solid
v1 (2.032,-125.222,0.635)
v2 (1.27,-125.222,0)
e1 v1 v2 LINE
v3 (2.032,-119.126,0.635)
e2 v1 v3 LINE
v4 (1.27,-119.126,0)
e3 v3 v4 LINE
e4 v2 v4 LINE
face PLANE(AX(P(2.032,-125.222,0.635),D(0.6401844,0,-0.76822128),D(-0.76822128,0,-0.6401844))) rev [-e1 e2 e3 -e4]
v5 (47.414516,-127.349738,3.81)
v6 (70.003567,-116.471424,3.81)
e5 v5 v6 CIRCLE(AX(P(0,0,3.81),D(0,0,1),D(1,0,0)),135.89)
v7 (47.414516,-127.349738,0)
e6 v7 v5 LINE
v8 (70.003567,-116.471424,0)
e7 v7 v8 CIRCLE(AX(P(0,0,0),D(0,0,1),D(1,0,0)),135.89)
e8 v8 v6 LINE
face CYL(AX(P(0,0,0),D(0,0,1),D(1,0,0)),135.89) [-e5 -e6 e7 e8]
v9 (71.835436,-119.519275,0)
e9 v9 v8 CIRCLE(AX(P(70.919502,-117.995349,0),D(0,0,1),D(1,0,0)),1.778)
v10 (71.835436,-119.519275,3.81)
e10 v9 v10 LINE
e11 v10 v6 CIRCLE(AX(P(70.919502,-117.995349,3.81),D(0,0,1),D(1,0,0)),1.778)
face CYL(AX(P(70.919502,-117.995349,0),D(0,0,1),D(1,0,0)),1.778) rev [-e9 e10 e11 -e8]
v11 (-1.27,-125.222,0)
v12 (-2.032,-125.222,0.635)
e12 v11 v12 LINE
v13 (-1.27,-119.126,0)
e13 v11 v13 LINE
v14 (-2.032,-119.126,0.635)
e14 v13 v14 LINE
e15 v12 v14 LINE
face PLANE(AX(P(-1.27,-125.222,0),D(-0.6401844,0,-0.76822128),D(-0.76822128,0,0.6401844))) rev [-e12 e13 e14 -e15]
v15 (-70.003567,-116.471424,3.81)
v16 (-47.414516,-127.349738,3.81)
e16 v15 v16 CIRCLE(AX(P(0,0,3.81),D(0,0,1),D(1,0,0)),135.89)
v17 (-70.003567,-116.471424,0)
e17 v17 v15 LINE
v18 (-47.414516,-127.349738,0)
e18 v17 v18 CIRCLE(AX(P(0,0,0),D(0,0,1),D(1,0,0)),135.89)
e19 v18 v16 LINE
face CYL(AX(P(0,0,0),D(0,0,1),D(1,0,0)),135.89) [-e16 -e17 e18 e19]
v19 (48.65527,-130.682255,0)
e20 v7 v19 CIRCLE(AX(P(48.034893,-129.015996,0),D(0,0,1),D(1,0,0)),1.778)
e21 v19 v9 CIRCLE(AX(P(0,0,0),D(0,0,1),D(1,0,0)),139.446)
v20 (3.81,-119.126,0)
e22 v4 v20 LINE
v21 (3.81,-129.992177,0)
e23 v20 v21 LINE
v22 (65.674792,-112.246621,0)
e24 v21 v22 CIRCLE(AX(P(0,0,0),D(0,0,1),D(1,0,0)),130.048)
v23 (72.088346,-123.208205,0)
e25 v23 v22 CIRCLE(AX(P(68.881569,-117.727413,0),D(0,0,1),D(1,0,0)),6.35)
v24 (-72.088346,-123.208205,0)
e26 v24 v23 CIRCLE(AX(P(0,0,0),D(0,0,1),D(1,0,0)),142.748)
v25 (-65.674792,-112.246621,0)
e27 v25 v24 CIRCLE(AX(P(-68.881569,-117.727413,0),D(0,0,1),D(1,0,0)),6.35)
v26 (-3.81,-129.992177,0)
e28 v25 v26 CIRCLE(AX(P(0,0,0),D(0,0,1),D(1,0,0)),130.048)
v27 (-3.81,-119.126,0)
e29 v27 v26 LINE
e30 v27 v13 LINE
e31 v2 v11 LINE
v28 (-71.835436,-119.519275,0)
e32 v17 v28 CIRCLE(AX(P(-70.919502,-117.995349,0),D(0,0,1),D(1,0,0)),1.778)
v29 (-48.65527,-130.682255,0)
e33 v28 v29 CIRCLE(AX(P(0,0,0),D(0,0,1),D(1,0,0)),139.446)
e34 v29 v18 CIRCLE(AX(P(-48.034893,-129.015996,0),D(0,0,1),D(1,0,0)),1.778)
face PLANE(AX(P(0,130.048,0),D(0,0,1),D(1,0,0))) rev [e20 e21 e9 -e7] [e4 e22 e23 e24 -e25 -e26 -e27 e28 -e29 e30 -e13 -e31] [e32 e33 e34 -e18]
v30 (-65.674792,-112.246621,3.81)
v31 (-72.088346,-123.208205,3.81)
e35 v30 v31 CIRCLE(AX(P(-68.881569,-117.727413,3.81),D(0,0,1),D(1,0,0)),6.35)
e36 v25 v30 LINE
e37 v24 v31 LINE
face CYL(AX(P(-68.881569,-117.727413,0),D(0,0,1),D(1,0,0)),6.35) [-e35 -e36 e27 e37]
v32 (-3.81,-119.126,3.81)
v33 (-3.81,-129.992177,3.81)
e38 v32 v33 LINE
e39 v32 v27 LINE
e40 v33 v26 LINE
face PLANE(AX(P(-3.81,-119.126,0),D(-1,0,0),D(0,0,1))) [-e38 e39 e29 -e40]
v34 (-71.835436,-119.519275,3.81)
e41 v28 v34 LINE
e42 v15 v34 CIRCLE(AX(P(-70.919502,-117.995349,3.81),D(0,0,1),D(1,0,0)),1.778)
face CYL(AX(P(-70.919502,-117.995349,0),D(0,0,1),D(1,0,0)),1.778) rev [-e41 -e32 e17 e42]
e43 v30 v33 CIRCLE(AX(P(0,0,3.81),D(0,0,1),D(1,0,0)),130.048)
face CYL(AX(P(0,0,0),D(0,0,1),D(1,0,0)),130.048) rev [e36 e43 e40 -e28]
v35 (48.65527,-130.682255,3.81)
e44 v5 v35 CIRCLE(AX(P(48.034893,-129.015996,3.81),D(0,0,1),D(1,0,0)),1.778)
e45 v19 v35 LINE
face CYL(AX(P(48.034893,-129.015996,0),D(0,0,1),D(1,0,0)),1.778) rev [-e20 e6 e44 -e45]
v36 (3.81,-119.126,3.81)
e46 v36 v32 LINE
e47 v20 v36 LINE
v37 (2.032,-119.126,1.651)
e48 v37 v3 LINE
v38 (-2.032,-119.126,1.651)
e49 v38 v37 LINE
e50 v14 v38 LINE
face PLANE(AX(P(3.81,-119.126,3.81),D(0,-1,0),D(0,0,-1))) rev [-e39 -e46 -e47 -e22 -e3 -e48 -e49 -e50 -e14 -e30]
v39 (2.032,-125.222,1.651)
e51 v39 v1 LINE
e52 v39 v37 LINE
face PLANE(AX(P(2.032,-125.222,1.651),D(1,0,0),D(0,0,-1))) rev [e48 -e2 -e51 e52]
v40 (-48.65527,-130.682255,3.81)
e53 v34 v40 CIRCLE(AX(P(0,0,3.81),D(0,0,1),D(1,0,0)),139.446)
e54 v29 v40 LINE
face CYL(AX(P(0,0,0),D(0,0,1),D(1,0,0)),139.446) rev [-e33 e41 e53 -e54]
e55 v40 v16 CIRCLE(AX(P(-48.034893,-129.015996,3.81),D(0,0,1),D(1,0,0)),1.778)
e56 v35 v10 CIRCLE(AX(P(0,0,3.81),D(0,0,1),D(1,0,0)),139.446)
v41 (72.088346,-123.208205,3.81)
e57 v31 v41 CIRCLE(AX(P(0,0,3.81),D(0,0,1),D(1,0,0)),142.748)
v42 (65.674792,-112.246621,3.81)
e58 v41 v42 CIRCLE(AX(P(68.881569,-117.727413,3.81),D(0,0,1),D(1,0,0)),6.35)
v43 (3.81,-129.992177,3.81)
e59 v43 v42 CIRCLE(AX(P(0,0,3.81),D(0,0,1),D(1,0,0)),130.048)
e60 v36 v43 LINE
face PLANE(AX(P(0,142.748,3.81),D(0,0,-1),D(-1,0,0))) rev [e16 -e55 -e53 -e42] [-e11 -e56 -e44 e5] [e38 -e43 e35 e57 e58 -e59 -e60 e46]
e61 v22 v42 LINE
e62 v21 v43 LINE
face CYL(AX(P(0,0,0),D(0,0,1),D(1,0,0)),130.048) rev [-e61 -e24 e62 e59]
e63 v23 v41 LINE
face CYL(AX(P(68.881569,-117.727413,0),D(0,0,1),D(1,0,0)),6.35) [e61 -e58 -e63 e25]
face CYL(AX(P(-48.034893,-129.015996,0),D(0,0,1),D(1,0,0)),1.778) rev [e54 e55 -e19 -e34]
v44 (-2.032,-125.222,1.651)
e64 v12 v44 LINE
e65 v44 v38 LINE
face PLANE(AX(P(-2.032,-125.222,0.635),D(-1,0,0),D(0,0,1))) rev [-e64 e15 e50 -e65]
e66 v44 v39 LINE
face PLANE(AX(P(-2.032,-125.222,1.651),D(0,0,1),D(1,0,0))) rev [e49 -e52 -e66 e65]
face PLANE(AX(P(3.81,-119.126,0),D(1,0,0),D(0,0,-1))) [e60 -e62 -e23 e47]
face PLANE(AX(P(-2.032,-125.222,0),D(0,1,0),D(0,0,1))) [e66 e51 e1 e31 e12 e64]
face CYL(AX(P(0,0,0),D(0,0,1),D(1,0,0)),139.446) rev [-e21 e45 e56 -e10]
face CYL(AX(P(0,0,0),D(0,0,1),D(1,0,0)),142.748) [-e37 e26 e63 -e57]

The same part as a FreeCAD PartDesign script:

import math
import FreeCAD as App
import Part
import Sketcher

V = App.Vector
Q = App.Units.Quantity


def add_polygon(sketch, points):
    """Adds a closed chain of lines whose ends are joined by coincident constraints."""
    first, n = sketch.GeometryCount, len(points)
    for a, b in zip(points, points[1:] + points[:1]):
        sketch.addGeometry(Part.LineSegment(App.Vector(*a, 0), App.Vector(*b, 0)), False)
    for i in range(n):
        sketch.addConstraint(Sketcher.Constraint("Coincident", first + i, 2, first + (i + 1) % n, 1))

doc = App.newDocument("Part")
params = doc.addObject("Spreadsheet::Sheet", "Params")
for row, (alias, value) in enumerate([
    ("sketch1_width", "0.5 in"),
    ("sketch1_height", "0.15 in"),
    ("revolution_angle", "360 deg"),
    ("sketch2_diameter", "0.14 in"),
    ("pocket1_length", "1.2 in"),
    ("sketch3_diameter", "0.14 in"),
    ("sketch3_radius", "5.49 in"),
    ("sketch3_radius2", "0.25 in"),
    ("sketch3_radius3", "5.12 in"),
    ("sketch4_width", "0.3 in"),
    ("sketch4_height", "0.15 in"),
    ("pad1_length", "0.43 in"),
    ("sketch5_width", "0.1 in"),
    ("sketch5_width2", "0.16 in"),
    ("sketch5_height", "0.04 in"),
    ("pocket3_length", "0.24 in"),
], start=1):
    params.set(f"A{row}", alias)
    params.set(f"B{row}", "=" + value)
    params.setAlias(f"B{row}", alias)

body = doc.addObject("PartDesign::Body", "Body")

sketch1 = body.newObject("Sketcher::SketchObject", "Sketch")
sketch1.AttachmentSupport = (doc.getObject("YZ_Plane"), [""])
sketch1.MapMode = "FlatFace"
add_polygon(sketch1, [(142.7, 3.8), (130, 3.8), (130, 0), (142.7, 0)])
sketch1.addConstraint([
    Sketcher.Constraint("Horizontal", 0),
    Sketcher.Constraint("Vertical", 1),
    Sketcher.Constraint("Horizontal", 2),
    Sketcher.Constraint("Vertical", 3),
    Sketcher.Constraint("PointOnObject", 1, 2, -1),
    Sketcher.Constraint("DistanceX", 0, 2, 0, 1, Q("0.5 in")),
    Sketcher.Constraint("DistanceY", 1, 2, 1, 1, Q("0.15 in")),
    Sketcher.Constraint("DistanceX", -1, 1, 0, 2, Q("5.12 in")),
])
sketch1.setExpression("Constraints[9]", "Params.sketch1_width")
sketch1.setExpression("Constraints[10]", "Params.sketch1_height")
revolution = body.newObject("PartDesign::Revolution", "Revolution")
revolution.Profile = sketch1
revolution.ReferenceAxis = (sketch1, ["V_Axis"])
revolution.setExpression("Angle", "Params.revolution_angle")

sketch2 = body.newObject("Sketcher::SketchObject", "Sketch001")
sketch2.AttachmentSupport = (doc.getObject("XY_Plane"), [""])
sketch2.MapMode = "FlatFace"
sketch2.AttachmentOffset = App.Placement(V(0, 0, 0.15 * 25.4), App.Rotation())
sketch2.addGeometry([
    Part.Circle(V(0, 137.7, 0), V(0, 0, 1), 1.8),
    Part.Circle(V(107.6, 85.8, 0), V(0, 0, 1), 1.8),
    Part.Circle(V(134.2, -30.6, 0), V(0, 0, 1), 1.8),
    Part.Circle(V(59.7, -124, 0), V(0, 0, 1), 1.8),
    Part.Circle(V(-59.7, -124, 0), V(0, 0, 1), 1.8),
    Part.Circle(V(-134.2, -30.6, 0), V(0, 0, 1), 1.8),
    Part.Circle(V(-107.6, 85.8, 0), V(0, 0, 1), 1.8),
], False)
sketch2.addConstraint([
    Sketcher.Constraint("Equal", 0, 1),
    Sketcher.Constraint("Equal", 1, 2),
    Sketcher.Constraint("Equal", 2, 3),
    Sketcher.Constraint("Equal", 3, 4),
    Sketcher.Constraint("Equal", 4, 5),
    Sketcher.Constraint("Equal", 5, 6),
    Sketcher.Constraint("Symmetric", 3, 3, 4, 3, -2),
    Sketcher.Constraint("Symmetric", 2, 3, 5, 3, -2),
    Sketcher.Constraint("Symmetric", 1, 3, 6, 3, -2),
    Sketcher.Constraint("PointOnObject", 0, 3, -2),
    Sketcher.Constraint("Diameter", 0, Q("0.14 in")),
    Sketcher.Constraint("DistanceY", -1, 1, 0, 3, Q("5.42 in")),
    Sketcher.Constraint("DistanceX", 1, 3, 2, 3, 26.583199),
    Sketcher.Constraint("DistanceY", 2, 3, -1, 1, 30.634012),
    Sketcher.Constraint("DistanceX", 3, 3, 2, 3, 74.484469),
    Sketcher.Constraint("DistanceY", 3, 3, 2, 3, 93.40057),
    Sketcher.Constraint("DistanceX", 5, 3, 2, 3, 268.432752),
    Sketcher.Constraint("DistanceY", -1, 1, 1, 3, 85.834594),
])
sketch2.setExpression("Constraints[10]", "Params.sketch2_diameter")
pocket1 = body.newObject("PartDesign::Pocket", "Pocket")
pocket1.Profile = sketch2
pocket1.setExpression("Length", "Params.pocket1_length")
pocket1.Midplane = True

sketch3 = body.newObject("Sketcher::SketchObject", "Sketch002")
sketch3.AttachmentSupport = (doc.getObject("XY_Plane"), [""])
sketch3.MapMode = "FlatFace"
sketch3.AttachmentOffset = App.Placement(V(0, 0, 0.15 * 25.4), App.Rotation())
sketch3.addGeometry([
    Part.ArcOfCircle(Part.Circle(V(-70.9, -118, 0), V(0, 0, 1), 1.8), math.radians(59), math.radians(239)),
    Part.ArcOfCircle(Part.Circle(V(0, 0, 0), V(0, 0, 1), 139.4), math.radians(-121.01), math.radians(-115.71)),
    Part.ArcOfCircle(Part.Circle(V(-59.7, -124, 0), V(0, 0, 1), 1.8), math.radians(64), math.radians(244)),
    Part.ArcOfCircle(Part.Circle(V(0, 0, 0), V(0, 0, 1), 135.9), math.radians(-121.01), math.radians(-115.71)),
    Part.ArcOfCircle(Part.Circle(V(-59.7, -124, 0), V(0, 0, 1), 1.8), math.radians(-116), math.radians(0)),
    Part.ArcOfCircle(Part.Circle(V(0, 0, 0), V(0, 0, 1), 139.4), math.radians(-115.71), math.radians(-110.42)),
    Part.ArcOfCircle(Part.Circle(V(-48, -129, 0), V(0, 0, 1), 1.8), math.radians(-110), math.radians(70)),
    Part.ArcOfCircle(Part.Circle(V(0, 0, 0), V(0, 0, 1), 135.9), math.radians(-115.71), math.radians(-110.42)),
    Part.ArcOfCircle(Part.Circle(V(-59.7, -124, 0), V(0, 0, 1), 1.8), math.radians(0), math.radians(64)),
    Part.ArcOfCircle(Part.Circle(V(48, -129, 0), V(0, 0, 1), 1.8), math.radians(110), math.radians(290)),
    Part.ArcOfCircle(Part.Circle(V(0, 0, 0), V(0, 0, 1), 139.4), math.radians(-69.58), math.radians(-64.29)),
    Part.ArcOfCircle(Part.Circle(V(59.7, -124, 0), V(0, 0, 1), 1.8), math.radians(116), math.radians(296)),
    Part.ArcOfCircle(Part.Circle(V(0, 0, 0), V(0, 0, 1), 135.9), math.radians(-69.58), math.radians(-64.29)),
    Part.ArcOfCircle(Part.Circle(V(59.7, -124, 0), V(0, 0, 1), 1.8), math.radians(-64), math.radians(0)),
    Part.ArcOfCircle(Part.Circle(V(0, 0, 0), V(0, 0, 1), 139.4), math.radians(-64.29), math.radians(-58.99)),
    Part.ArcOfCircle(Part.Circle(V(70.9, -118, 0), V(0, 0, 1), 1.8), math.radians(-59), math.radians(121)),
    Part.ArcOfCircle(Part.Circle(V(0, 0, 0), V(0, 0, 1), 135.9), math.radians(-64.29), math.radians(-58.99)),
    Part.ArcOfCircle(Part.Circle(V(59.7, -124, 0), V(0, 0, 1), 1.8), math.radians(0), math.radians(116)),
    Part.ArcOfCircle(Part.Circle(V(-68.9, -117.7, 0), V(0, 0, 1), 6.3), math.radians(60), math.radians(240)),
    Part.ArcOfCircle(Part.Circle(V(0, 0, 0), V(0, 0, 1), 130), math.radians(0), math.radians(240)),
    Part.ArcOfCircle(Part.Circle(V(0, 0, 0), V(0, 0, 1), 130), math.radians(-60), math.radians(0)),
    Part.ArcOfCircle(Part.Circle(V(68.9, -117.7, 0), V(0, 0, 1), 6.3), math.radians(-60), math.radians(120)),
    Part.ArcOfCircle(Part.Circle(V(0, 0, 0), V(0, 0, 1), 142.7), math.radians(-60), math.radians(0)),
    Part.ArcOfCircle(Part.Circle(V(0, 0, 0), V(0, 0, 1), 142.7), math.radians(0), math.radians(240)),
    Part.Circle(V(-134.2, -30.6, 0), V(0, 0, 1), 1.8),
    Part.Circle(V(134.2, -30.6, 0), V(0, 0, 1), 1.8),
    Part.Circle(V(-107.6, 85.8, 0), V(0, 0, 1), 1.8),
    Part.Circle(V(0, 137.7, 0), V(0, 0, 1), 1.8),
    Part.Circle(V(107.6, 85.8, 0), V(0, 0, 1), 1.8),
], False)
sketch3.addConstraint([
    Sketcher.Constraint("Tangent", 0, 2, 1, 1),
    Sketcher.Constraint("Tangent", 1, 2, 2, 2),
    Sketcher.Constraint("Tangent", 2, 1, 3, 2),
    Sketcher.Constraint("Tangent", 3, 1, 0, 1),
    Sketcher.Constraint("Tangent", 4, 1, 5, 1),
    Sketcher.Constraint("Tangent", 5, 2, 6, 1),
    Sketcher.Constraint("Tangent", 6, 2, 7, 2),
    Sketcher.Constraint("Tangent", 7, 1, 8, 2),
    Sketcher.Constraint("Tangent", 8, 1, 4, 2),
    Sketcher.Constraint("Tangent", 9, 2, 10, 1),
    Sketcher.Constraint("Tangent", 10, 2, 11, 2),
    Sketcher.Constraint("Tangent", 11, 1, 12, 2),
    Sketcher.Constraint("Tangent", 12, 1, 9, 1),
    Sketcher.Constraint("Tangent", 13, 1, 14, 1),
    Sketcher.Constraint("Tangent", 14, 2, 15, 1),
    Sketcher.Constraint("Tangent", 15, 2, 16, 2),
    Sketcher.Constraint("Tangent", 16, 1, 17, 2),
    Sketcher.Constraint("Tangent", 17, 1, 13, 2),
    Sketcher.Constraint("Tangent", 18, 1, 19, 2),
    Sketcher.Constraint("Tangent", 19, 1, 20, 2),
    Sketcher.Constraint("Tangent", 20, 1, 21, 2),
    Sketcher.Constraint("Tangent", 21, 1, 22, 1),
    Sketcher.Constraint("Tangent", 22, 2, 23, 1),
    Sketcher.Constraint("Tangent", 23, 2, 18, 2),
    Sketcher.Constraint("Coincident", 1, 3, -1, 1),
    Sketcher.Constraint("Coincident", 3, 3, -1, 1),
    Sketcher.Constraint("Coincident", 5, 3, -1, 1),
    Sketcher.Constraint("Coincident", 7, 3, -1, 1),
    Sketcher.Constraint("Coincident", 10, 3, -1, 1),
    Sketcher.Constraint("Coincident", 12, 3, -1, 1),
    Sketcher.Constraint("Coincident", 14, 3, -1, 1),
    Sketcher.Constraint("Coincident", 16, 3, -1, 1),
    Sketcher.Constraint("Coincident", 19, 3, -1, 1),
    Sketcher.Constraint("Coincident", 22, 3, -1, 1),
    Sketcher.Constraint("Coincident", 4, 3, 2, 3),
    Sketcher.Constraint("Coincident", 13, 3, 11, 3),
    Sketcher.Constraint("Coincident", 7, 1, 2, 1),
    Sketcher.Constraint("Coincident", 16, 1, 11, 1),
    Sketcher.Constraint("Equal", 8, 9),
    Sketcher.Constraint("Equal", 5, 10),
    Sketcher.Constraint("Equal", 19, 20),
    Sketcher.Constraint("Equal", 18, 21),
    Sketcher.Constraint("Equal", 17, 24),
    Sketcher.Constraint("Equal", 24, 25),
    Sketcher.Constraint("Equal", 25, 26),
    Sketcher.Constraint("Equal", 26, 27),
    Sketcher.Constraint("Equal", 27, 28),
    Sketcher.Constraint("Symmetric", 24, 3, 25, 3, -2),
    Sketcher.Constraint("Symmetric", 26, 3, 28, 3, -2),
    Sketcher.Constraint("PointOnObject", 27, 3, -2),
    Sketcher.Constraint("PointOnObject", 19, 1, -1),
    Sketcher.Constraint("PointOnObject", 22, 2, -1),
    Sketcher.Constraint("Horizontal", 6, 3, 9, 3),
    Sketcher.Constraint("Horizontal", 8, 3, 11, 3),
    Sketcher.Constraint("Horizontal", 0, 3, 15, 3),
    Sketcher.Constraint("Horizontal", 18, 3, 21, 3),
    Sketcher.Constraint("Horizontal", 17, 3, 8, 1),
    Sketcher.Constraint("Horizontal", 8, 1, 17, 1),
    Sketcher.Constraint("Diameter", 24, Q("0.14 in")),
    Sketcher.Constraint("Radius", 1, Q("5.49 in")),
    Sketcher.Constraint("Radius", 18, Q("0.25 in")),
    Sketcher.Constraint("Radius", 19, Q("5.12 in")),
    Sketcher.Constraint("DistanceY", -1, 1, 27, 3, Q("5.42 in")),
    Sketcher.Constraint("DistanceX", 0, 3, -1, 1, 70.919502),
    Sketcher.Constraint("DistanceX", 4, 3, 9, 3, 107.766799),
    Sketcher.Constraint("DistanceY", 18, 3, 24, 3, 87.093401),
    Sketcher.Constraint("DistanceX", 24, 3, 26, 3, 26.583199),
    Sketcher.Constraint("DistanceX", 3, 1, 18, 3, 1.121998),
    Sketcher.Constraint("DistanceX", 9, 2, 21, 3, 20.2263),
    Sketcher.Constraint("DistanceX", 24, 3, 2, 3, 74.484469),
    Sketcher.Constraint("DistanceY", -1, 1, 26, 3, 85.834594),
])
sketch3.setExpression("Constraints[58]", "Params.sketch3_diameter")
sketch3.setExpression("Constraints[59]", "Params.sketch3_radius")
sketch3.setExpression("Constraints[60]", "Params.sketch3_radius2")
sketch3.setExpression("Constraints[61]", "Params.sketch3_radius3")
pocket2 = body.newObject("PartDesign::Pocket", "Pocket001")
pocket2.Profile = sketch3
pocket2.Type = "ThroughAll"

sketch4 = body.newObject("Sketcher::SketchObject", "Sketch003")
sketch4.AttachmentSupport = (doc.getObject("XZ_Plane"), [""])
sketch4.MapMode = "FlatFace"
sketch4.AttachmentOffset = App.Placement(V(0, 0, 5.12 * 25.4), App.Rotation())
add_polygon(sketch4, [(-3.8, 3.8), (-3.8, 0), (3.8, 0), (3.8, 3.8)])
sketch4.addConstraint([
    Sketcher.Constraint("Vertical", 0),
    Sketcher.Constraint("Horizontal", 1),
    Sketcher.Constraint("Vertical", 2),
    Sketcher.Constraint("Horizontal", 3),
    Sketcher.Constraint("Symmetric", 0, 2, 1, 2, -1, 1),
    Sketcher.Constraint("DistanceX", 1, 1, 1, 2, Q("0.3 in")),
    Sketcher.Constraint("DistanceY", 0, 2, 0, 1, Q("0.15 in")),
])
sketch4.setExpression("Constraints[9]", "Params.sketch4_width")
sketch4.setExpression("Constraints[10]", "Params.sketch4_height")
pad1 = body.newObject("PartDesign::Pad", "Pad")
pad1.Profile = sketch4
pad1.setExpression("Length", "Params.pad1_length")
pad1.Reversed = True

sketch5 = body.newObject("Sketcher::SketchObject", "Sketch004")
sketch5.AttachmentSupport = (doc.getObject("XZ_Plane"), [""])
sketch5.MapMode = "FlatFace"
sketch5.AttachmentOffset = App.Placement(V(0, 0, 4.69 * 25.4), App.Rotation())
add_polygon(sketch5, [(-1.3, 0), (-2, 0.6), (-2, 1.7), (2, 1.7), (2, 0.6), (1.3, 0)])
sketch5.addConstraint([
    Sketcher.Constraint("Vertical", 1),
    Sketcher.Constraint("Horizontal", 2),
    Sketcher.Constraint("Vertical", 3),
    Sketcher.Constraint("Horizontal", 5),
    Sketcher.Constraint("Symmetric", 4, 2, 5, 2, -1, 1),
    Sketcher.Constraint("Symmetric", 0, 2, 3, 2, -2),
    Sketcher.Constraint("DistanceX", 5, 2, 5, 1, Q("0.1 in")),
    Sketcher.Constraint("DistanceX", 2, 1, 2, 2, Q("0.16 in")),
    Sketcher.Constraint("DistanceY", 1, 1, 1, 2, Q("0.04 in")),
    Sketcher.Constraint("DistanceY", -1, 1, 0, 2, Q("0.025 in")),
])
sketch5.setExpression("Constraints[12]", "Params.sketch5_width")
sketch5.setExpression("Constraints[13]", "Params.sketch5_width2")
sketch5.setExpression("Constraints[14]", "Params.sketch5_height")
pocket3 = body.newObject("PartDesign::Pocket", "Pocket002")
pocket3.Profile = sketch5
pocket3.setExpression("Length", "Params.pocket3_length")
pocket3.Reversed = True

doc.recompute()
